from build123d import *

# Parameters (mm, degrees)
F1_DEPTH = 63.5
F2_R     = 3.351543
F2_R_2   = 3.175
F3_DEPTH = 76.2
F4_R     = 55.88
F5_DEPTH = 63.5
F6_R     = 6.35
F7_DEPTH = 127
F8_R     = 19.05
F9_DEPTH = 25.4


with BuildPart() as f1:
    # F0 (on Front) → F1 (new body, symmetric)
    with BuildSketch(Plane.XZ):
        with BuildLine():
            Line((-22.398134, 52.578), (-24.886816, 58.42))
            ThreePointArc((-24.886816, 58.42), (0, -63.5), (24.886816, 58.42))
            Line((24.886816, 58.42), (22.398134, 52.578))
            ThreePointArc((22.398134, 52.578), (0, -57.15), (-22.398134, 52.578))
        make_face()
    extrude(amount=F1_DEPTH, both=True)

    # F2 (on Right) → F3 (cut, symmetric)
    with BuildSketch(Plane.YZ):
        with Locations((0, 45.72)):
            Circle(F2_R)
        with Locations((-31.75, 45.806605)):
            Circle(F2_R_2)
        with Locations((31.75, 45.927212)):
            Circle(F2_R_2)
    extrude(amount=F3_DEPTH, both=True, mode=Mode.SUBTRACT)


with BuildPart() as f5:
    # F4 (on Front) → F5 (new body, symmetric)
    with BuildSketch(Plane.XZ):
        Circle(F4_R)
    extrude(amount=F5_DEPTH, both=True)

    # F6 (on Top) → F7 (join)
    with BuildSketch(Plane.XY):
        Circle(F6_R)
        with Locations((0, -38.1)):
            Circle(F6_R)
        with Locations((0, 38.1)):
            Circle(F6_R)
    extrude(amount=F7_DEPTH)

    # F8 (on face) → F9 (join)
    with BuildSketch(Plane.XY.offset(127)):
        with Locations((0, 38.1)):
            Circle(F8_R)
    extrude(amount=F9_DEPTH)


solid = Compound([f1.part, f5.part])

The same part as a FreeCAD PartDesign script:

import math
import FreeCAD as App
import Part
import Sketcher

V = App.Vector
Q = App.Units.Quantity

doc = App.newDocument("Part")
body = doc.addObject("PartDesign::Body", "Body")

# Sketch on XZ plane
sketch1 = body.newObject("Sketcher::SketchObject", "Sketch")
sketch1.AttachmentSupport = (doc.getObject("XZ_Plane"), [""])
sketch1.MapMode = "FlatFace"
sketch1.addGeometry(Part.LineSegment(V(-22, 53, 0), V(-25, 58, 0)), False)
sketch1.addGeometry(Part.ArcOfCircle(Part.Circle(V(0, 0, 0), V(0, 0, 1), 64), math.radians(113), math.radians(427)), False)
sketch1.addGeometry(Part.LineSegment(V(25, 58, 0), V(22, 53, 0)), False)
sketch1.addGeometry(Part.ArcOfCircle(Part.Circle(V(0, 0, 0), V(0, 0, 1), 57), math.radians(113), math.radians(427)), False)
sketch1.addConstraint(Sketcher.Constraint("Coincident", 0, 2, 1, 1))
sketch1.addConstraint(Sketcher.Constraint("Coincident", 1, 2, 2, 1))
sketch1.addConstraint(Sketcher.Constraint("Coincident", 2, 2, 3, 2))
sketch1.addConstraint(Sketcher.Constraint("Coincident", 3, 1, 0, 1))
sketch1.addConstraint(Sketcher.Constraint("Coincident", 1, 3, -1, 1))
sketch1.addConstraint(Sketcher.Constraint("Coincident", 3, 3, -1, 1))
sketch1.addConstraint(Sketcher.Constraint("Horizontal", 0, 2, 1, 2))
sketch1.addConstraint(Sketcher.Constraint("Horizontal", 2, 2, 3, 1))
sketch1.addConstraint(Sketcher.Constraint("Radius", 1, Q("2.5 in")))
sketch1.addConstraint(Sketcher.Constraint("Radius", 3, Q("2.25 in")))
sketch1.addConstraint(Sketcher.Constraint("DistanceY", -1, 1, 0, 2, Q("2.3 in")))
sketch1.addConstraint(Sketcher.Constraint("DistanceY", -1, 1, 2, 2, Q("2.07 in")))
pad1 = body.newObject("PartDesign::Pad", "Pad")
pad1.Profile = sketch1
pad1.Length = Q("5 in")
pad1.Midplane = True

# Sketch on YZ plane
sketch2 = body.newObject("Sketcher::SketchObject", "Sketch001")
sketch2.AttachmentSupport = (doc.getObject("YZ_Plane"), [""])
sketch2.MapMode = "FlatFace"
sketch2.addGeometry(Part.Circle(V(0, 45.7, 0), V(0, 0, 1), 3.4), False)
sketch2.addGeometry(Part.Circle(V(-31.8, 45.8, 0), V(0, 0, 1), 3.2), False)
sketch2.addGeometry(Part.Circle(V(31.8, 45.9, 0), V(0, 0, 1), 3.2), False)
sketch2.addConstraint(Sketcher.Constraint("Equal", 1, 2))
sketch2.addConstraint(Sketcher.Constraint("PointOnObject", 0, 3, -2))
sketch2.addConstraint(Sketcher.Constraint("Diameter", 1, Q("0.25 in")))
sketch2.addConstraint(Sketcher.Constraint("DistanceY", -1, 1, 0, 3, Q("1.8 in")))
sketch2.addConstraint(Sketcher.Constraint("DistanceX", 1, 3, 2, 3, Q("2.5 in")))
sketch2.addConstraint(Sketcher.Constraint("DistanceX", 1, 3, -1, 1, Q("1.25 in")))
sketch2.addConstraint(Sketcher.Constraint("Diameter", 0, 6.703086))
sketch2.addConstraint(Sketcher.Constraint("DistanceY", -1, 1, 2, 3, 45.927212))
sketch2.addConstraint(Sketcher.Constraint("DistanceY", -1, 1, 1, 3, 45.806605))
pocket1 = body.newObject("PartDesign::Pocket", "Pocket")
pocket1.Profile = sketch2
pocket1.Length = Q("6 in")
pocket1.Midplane = True
body2 = doc.addObject("PartDesign::Body", "Body001")

# Sketch on XZ plane
sketch3 = body2.newObject("Sketcher::SketchObject", "Sketch002")
sketch3.AttachmentSupport = (doc.getObject("XZ_Plane001"), [""])
sketch3.MapMode = "FlatFace"
sketch3.addGeometry(Part.Circle(V(0, 0, 0), V(0, 0, 1), 56), False)
sketch3.addConstraint(Sketcher.Constraint("Coincident", 0, 3, -1, 1))
sketch3.addConstraint(Sketcher.Constraint("Diameter", 0, Q("4.4 in")))
pad2 = body2.newObject("PartDesign::Pad", "Pad001")
pad2.Profile = sketch3
pad2.Length = Q("5 in")
pad2.Midplane = True

# Sketch on XY plane
sketch4 = body2.newObject("Sketcher::SketchObject", "Sketch003")
sketch4.AttachmentSupport = (doc.getObject("XY_Plane001"), [""])
sketch4.MapMode = "FlatFace"
sketch4.addGeometry(Part.Circle(V(0, 0, 0), V(0, 0, 1), 6), False)
sketch4.addGeometry(Part.Circle(V(0, -38, 0), V(0, 0, 1), 6), False)
sketch4.addGeometry(Part.Circle(V(0, 38, 0), V(0, 0, 1), 6), False)
sketch4.addConstraint(Sketcher.Constraint("Coincident", 0, 3, -1, 1))
sketch4.addConstraint(Sketcher.Constraint("Equal", 0, 1))
sketch4.addConstraint(Sketcher.Constraint("Equal", 1, 2))
sketch4.addConstraint(Sketcher.Constraint("Symmetric", 1, 3, 2, 3, -1, 1))
sketch4.addConstraint(Sketcher.Constraint("PointOnObject", 1, 3, -2))
sketch4.addConstraint(Sketcher.Constraint("Diameter", 0, Q("0.5 in")))
sketch4.addConstraint(Sketcher.Constraint("DistanceY", 1, 3, 2, 3, Q("3 in")))
pad3 = body2.newObject("PartDesign::Pad", "Pad002")
pad3.Profile = sketch4
pad3.Length = Q("5 in")

# Sketch on XY plane
sketch5 = body2.newObject("Sketcher::SketchObject", "Sketch004")
sketch5.AttachmentSupport = (doc.getObject("XY_Plane001"), [""])
sketch5.MapMode = "FlatFace"
sketch5.AttachmentOffset = App.Placement(V(0, 0, 5 * 25.4), App.Rotation())
sketch5.addGeometry(Part.Circle(V(0, 38, 0), V(0, 0, 1), 19), False)
sketch5.addConstraint(Sketcher.Constraint("PointOnObject", 0, 3, -2))
sketch5.addConstraint(Sketcher.Constraint("Diameter", 0, Q("1.5 in")))
sketch5.addConstraint(Sketcher.Constraint("DistanceY", -1, 1, 0, 3, Q("1.5 in")))
pad4 = body2.newObject("PartDesign::Pad", "Pad003")
pad4.Profile = sketch5
pad4.Length = Q("1 in")

doc.recompute()
